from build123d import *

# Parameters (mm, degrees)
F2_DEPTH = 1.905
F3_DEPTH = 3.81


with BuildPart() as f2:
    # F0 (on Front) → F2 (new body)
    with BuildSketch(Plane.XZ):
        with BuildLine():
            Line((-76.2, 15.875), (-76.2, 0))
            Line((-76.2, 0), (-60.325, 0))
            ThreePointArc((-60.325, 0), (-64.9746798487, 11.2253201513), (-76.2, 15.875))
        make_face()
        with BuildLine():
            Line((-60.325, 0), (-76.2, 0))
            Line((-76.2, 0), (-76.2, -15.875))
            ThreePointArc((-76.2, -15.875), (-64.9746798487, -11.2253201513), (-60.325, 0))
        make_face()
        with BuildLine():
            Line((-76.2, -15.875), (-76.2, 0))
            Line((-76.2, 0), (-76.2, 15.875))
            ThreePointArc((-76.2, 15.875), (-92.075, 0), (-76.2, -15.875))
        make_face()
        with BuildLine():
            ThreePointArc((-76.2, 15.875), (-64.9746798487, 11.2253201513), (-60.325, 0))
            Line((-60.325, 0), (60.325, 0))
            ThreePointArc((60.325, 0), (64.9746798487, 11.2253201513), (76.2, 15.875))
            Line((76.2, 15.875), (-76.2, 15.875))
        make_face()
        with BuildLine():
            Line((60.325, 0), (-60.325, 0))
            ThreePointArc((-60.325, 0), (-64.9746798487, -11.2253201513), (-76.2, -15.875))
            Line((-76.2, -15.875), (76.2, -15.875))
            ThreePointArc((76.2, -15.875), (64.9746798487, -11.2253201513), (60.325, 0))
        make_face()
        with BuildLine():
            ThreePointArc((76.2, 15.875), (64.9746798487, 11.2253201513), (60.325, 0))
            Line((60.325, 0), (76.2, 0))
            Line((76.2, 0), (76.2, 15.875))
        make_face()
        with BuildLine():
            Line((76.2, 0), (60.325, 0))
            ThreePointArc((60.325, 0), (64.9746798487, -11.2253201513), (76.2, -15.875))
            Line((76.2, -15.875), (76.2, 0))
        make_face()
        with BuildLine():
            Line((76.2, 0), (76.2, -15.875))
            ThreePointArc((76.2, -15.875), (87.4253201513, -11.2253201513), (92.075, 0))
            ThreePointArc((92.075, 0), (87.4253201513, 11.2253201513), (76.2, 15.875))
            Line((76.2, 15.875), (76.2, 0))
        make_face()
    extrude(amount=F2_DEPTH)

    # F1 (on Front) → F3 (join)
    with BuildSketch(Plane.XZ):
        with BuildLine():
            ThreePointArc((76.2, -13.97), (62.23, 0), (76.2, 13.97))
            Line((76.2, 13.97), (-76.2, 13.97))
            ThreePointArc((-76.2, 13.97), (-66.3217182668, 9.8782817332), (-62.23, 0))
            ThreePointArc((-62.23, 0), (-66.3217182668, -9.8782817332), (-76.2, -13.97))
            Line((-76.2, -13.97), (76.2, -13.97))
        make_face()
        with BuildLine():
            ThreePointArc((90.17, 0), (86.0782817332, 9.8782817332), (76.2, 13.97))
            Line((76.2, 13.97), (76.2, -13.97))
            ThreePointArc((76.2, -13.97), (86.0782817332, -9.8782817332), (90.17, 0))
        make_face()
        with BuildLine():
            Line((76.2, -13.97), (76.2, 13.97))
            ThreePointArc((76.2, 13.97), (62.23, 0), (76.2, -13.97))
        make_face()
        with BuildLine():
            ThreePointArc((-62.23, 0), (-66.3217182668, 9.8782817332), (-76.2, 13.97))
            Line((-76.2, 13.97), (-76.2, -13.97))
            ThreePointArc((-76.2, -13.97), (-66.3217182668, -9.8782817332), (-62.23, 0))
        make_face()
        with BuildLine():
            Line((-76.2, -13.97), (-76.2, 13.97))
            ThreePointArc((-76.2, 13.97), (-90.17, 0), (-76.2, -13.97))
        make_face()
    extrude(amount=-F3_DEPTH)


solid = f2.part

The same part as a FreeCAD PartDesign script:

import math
import FreeCAD as App
import Part
import Sketcher

V = App.Vector
Q = App.Units.Quantity

doc = App.newDocument("Part")
body = doc.addObject("PartDesign::Body", "Body")

# Sketch on XZ plane
sketch1 = body.newObject("Sketcher::SketchObject", "Sketch")
sketch1.AttachmentSupport = (doc.getObject("XZ_Plane"), [""])
sketch1.MapMode = "FlatFace"
sketch1.addGeometry([
    Part.LineSegment(V(76, 16, 0), V(-76, 16, 0)),  # 0
    Part.ArcOfCircle(Part.Circle(V(-76, 0, 0), V(0, 0, 1), 16), math.radians(90), math.radians(270)),  # 1
    Part.LineSegment(V(-76, -16, 0), V(76, -16, 0)),  # 2
    Part.ArcOfCircle(Part.Circle(V(76, 0, 0), V(0, 0, 1), 16), math.radians(-90), math.radians(0)),  # 3
    Part.ArcOfCircle(Part.Circle(V(76, 0, 0), V(0, 0, 1), 16), math.radians(0), math.radians(90)),  # 4
], False)
sketch1.addConstraint([
    Sketcher.Constraint("Tangent", 0, 2, 1, 1),
    Sketcher.Constraint("Tangent", 1, 2, 2, 1),
    Sketcher.Constraint("Tangent", 2, 2, 3, 1),
    Sketcher.Constraint("Tangent", 3, 2, 4, 1),
    Sketcher.Constraint("Tangent", 4, 2, 0, 1),
    Sketcher.Constraint("Horizontal", 0),
    Sketcher.Constraint("Horizontal", 2),
    Sketcher.Constraint("Equal", 1, 3),
    Sketcher.Constraint("Symmetric", 1, 3, 3, 3, -1, 1),
    Sketcher.Constraint("PointOnObject", 3, 2, -1),
    Sketcher.Constraint("DistanceX", 0, 2, 0, 1, Q("6 in")),
    Sketcher.Constraint("Radius", 1, Q("0.625 in")),
])
pad1 = body.newObject("PartDesign::Pad", "Pad")
pad1.Profile = sketch1
pad1.Length = Q("0.075 in")

# Sketch on XZ plane
sketch2 = body.newObject("Sketcher::SketchObject", "Sketch001")
sketch2.AttachmentSupport = (doc.getObject("XZ_Plane"), [""])
sketch2.MapMode = "FlatFace"
sketch2.addGeometry([
    Part.LineSegment(V(76, 14, 0), V(-76, 14, 0)),  # 0
    Part.ArcOfCircle(Part.Circle(V(-76, 0, 0), V(0, 0, 1), 14), math.radians(90), math.radians(270)),  # 1
    Part.LineSegment(V(-76, -14, 0), V(76, -14, 0)),  # 2
    Part.ArcOfCircle(Part.Circle(V(76, 0, 0), V(0, 0, 1), 14), math.radians(-90), math.radians(0)),  # 3
    Part.ArcOfCircle(Part.Circle(V(76, 0, 0), V(0, 0, 1), 14), math.radians(0), math.radians(90)),  # 4
], False)
sketch2.addConstraint([
    Sketcher.Constraint("Tangent", 0, 2, 1, 1),
    Sketcher.Constraint("Tangent", 1, 2, 2, 1),
    Sketcher.Constraint("Tangent", 2, 2, 3, 1),
    Sketcher.Constraint("Tangent", 3, 2, 4, 1),
    Sketcher.Constraint("Tangent", 4, 2, 0, 1),
    Sketcher.Constraint("Horizontal", 0),
    Sketcher.Constraint("Horizontal", 2),
    Sketcher.Constraint("Equal", 1, 3),
    Sketcher.Constraint("Symmetric", 1, 3, 3, 3, -1, 1),
    Sketcher.Constraint("PointOnObject", 3, 2, -1),
    Sketcher.Constraint("DistanceX", 0, 2, 0, 1, Q("6 in")),
    Sketcher.Constraint("Radius", 1, Q("0.55 in")),
])
pad2 = body.newObject("PartDesign::Pad", "Pad001")
pad2.Profile = sketch2
pad2.Length = Q("0.15 in")
pad2.Reversed = True

doc.recompute()
